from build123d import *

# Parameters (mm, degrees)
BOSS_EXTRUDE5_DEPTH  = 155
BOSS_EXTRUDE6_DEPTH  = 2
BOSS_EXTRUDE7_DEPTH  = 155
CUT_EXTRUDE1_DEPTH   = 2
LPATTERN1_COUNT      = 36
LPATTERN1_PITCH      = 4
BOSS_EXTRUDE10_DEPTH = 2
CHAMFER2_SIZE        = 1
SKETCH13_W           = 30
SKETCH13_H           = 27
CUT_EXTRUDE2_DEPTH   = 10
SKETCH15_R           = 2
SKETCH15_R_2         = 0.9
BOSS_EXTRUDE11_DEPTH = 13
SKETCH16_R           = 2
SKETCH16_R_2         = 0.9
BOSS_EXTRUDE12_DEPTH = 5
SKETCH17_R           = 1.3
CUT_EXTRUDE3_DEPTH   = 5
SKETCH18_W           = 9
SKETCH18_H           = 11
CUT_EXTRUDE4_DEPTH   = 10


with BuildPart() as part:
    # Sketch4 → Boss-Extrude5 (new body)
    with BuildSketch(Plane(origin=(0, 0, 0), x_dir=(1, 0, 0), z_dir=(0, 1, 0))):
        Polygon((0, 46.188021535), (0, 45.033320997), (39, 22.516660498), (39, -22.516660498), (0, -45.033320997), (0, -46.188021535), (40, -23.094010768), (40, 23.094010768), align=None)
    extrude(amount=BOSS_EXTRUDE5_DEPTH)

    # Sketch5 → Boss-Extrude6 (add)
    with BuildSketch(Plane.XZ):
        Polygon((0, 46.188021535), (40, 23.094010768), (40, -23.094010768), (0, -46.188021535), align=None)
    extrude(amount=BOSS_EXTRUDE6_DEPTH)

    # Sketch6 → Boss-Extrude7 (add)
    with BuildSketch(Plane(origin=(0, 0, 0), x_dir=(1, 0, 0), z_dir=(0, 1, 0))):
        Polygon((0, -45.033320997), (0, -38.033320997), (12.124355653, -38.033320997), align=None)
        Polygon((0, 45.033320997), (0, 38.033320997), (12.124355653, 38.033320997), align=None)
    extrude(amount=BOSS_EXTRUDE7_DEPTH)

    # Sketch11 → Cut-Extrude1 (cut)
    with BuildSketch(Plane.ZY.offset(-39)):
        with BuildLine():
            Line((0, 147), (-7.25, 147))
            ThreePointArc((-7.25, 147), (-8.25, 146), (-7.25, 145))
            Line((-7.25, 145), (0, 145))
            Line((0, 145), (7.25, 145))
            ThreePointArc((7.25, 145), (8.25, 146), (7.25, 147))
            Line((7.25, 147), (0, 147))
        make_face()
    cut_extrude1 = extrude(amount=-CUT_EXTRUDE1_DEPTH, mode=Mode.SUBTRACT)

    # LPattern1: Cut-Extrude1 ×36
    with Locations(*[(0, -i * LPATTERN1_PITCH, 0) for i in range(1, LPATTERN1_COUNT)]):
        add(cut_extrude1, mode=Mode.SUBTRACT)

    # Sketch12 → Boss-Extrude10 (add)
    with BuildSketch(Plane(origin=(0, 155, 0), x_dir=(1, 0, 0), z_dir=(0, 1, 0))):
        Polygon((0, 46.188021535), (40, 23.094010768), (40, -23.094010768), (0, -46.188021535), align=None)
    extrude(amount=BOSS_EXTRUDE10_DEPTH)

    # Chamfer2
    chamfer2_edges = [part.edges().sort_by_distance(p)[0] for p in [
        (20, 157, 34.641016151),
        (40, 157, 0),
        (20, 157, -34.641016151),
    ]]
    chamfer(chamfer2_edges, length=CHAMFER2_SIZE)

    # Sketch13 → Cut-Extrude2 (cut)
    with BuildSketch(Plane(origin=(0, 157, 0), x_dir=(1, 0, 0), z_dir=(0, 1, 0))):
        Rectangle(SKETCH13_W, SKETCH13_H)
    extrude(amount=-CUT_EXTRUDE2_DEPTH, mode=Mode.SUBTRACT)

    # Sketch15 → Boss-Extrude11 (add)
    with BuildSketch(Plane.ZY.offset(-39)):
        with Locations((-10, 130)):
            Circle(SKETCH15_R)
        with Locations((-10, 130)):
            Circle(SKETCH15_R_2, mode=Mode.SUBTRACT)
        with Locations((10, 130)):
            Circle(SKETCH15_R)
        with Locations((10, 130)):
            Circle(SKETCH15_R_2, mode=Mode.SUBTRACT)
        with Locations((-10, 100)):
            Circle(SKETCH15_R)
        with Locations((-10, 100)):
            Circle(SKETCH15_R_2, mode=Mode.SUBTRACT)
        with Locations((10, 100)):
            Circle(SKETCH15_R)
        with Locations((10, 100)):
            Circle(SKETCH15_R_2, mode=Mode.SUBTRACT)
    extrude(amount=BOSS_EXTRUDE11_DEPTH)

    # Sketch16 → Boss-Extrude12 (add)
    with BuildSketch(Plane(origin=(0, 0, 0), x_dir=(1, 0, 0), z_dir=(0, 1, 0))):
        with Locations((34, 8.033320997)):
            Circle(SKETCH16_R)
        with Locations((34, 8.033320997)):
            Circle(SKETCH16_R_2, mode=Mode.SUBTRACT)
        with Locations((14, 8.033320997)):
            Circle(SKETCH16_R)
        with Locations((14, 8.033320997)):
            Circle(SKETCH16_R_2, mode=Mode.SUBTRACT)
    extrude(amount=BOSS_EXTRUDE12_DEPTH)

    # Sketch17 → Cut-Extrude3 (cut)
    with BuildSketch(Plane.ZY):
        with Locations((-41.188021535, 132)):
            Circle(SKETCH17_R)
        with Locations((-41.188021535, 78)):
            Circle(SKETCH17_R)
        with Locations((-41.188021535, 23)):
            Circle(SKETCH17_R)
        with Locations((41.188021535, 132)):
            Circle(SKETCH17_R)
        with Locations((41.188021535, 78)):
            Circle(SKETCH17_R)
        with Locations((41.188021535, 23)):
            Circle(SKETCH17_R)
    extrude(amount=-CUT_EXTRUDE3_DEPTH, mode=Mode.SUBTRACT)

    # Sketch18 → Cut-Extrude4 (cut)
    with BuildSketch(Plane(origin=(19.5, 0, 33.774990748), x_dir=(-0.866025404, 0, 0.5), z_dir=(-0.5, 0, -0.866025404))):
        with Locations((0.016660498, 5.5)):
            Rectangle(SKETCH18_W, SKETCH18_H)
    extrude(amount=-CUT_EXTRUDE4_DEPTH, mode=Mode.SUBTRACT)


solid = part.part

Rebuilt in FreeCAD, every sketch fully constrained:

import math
import FreeCAD as App
import Part
import Sketcher

V = App.Vector
Q = App.Units.Quantity


def edges_at(feature, points):
    """Names of the edges that pass closest to the given points."""
    edges = feature.Shape.Edges
    near = lambda p: min(range(len(edges)), key=lambda i: edges[i].distToShape(Part.Vertex(*p))[0])
    return sorted({f"Edge{near(p) + 1}" for p in points})

doc = App.newDocument("Part")
body = doc.addObject("PartDesign::Body", "Body")

# Sketch on XZ plane
sketch1 = body.newObject("Sketcher::SketchObject", "Sketch")
sketch1.AttachmentSupport = (doc.getObject("XZ_Plane"), [""])
sketch1.MapMode = "FlatFace"
sketch1.addGeometry([
    Part.LineSegment(V(0, -46.2, 0), V(0, -45, 0)),  # 0
    Part.LineSegment(V(0, -45, 0), V(39, -22.5, 0)),  # 1
    Part.LineSegment(V(39, -22.5, 0), V(39, 22.5, 0)),  # 2
    Part.LineSegment(V(39, 22.5, 0), V(0, 45, 0)),  # 3
    Part.LineSegment(V(0, 45, 0), V(0, 46.2, 0)),  # 4
    Part.LineSegment(V(0, 46.2, 0), V(40, 23.1, 0)),  # 5
    Part.LineSegment(V(40, 23.1, 0), V(40, -23.1, 0)),  # 6
    Part.LineSegment(V(40, -23.1, 0), V(0, -46.2, 0)),  # 7
], False)
sketch1.addConstraint([
    Sketcher.Constraint("Coincident", 0, 2, 1, 1),
    Sketcher.Constraint("Coincident", 1, 2, 2, 1),
    Sketcher.Constraint("Coincident", 2, 2, 3, 1),
    Sketcher.Constraint("Coincident", 3, 2, 4, 1),
    Sketcher.Constraint("Coincident", 4, 2, 5, 1),
    Sketcher.Constraint("Coincident", 5, 2, 6, 1),
    Sketcher.Constraint("Coincident", 6, 2, 7, 1),
    Sketcher.Constraint("Coincident", 7, 2, 0, 1),
    Sketcher.Constraint("Vertical", 0),
    Sketcher.Constraint("Vertical", 2),
    Sketcher.Constraint("Vertical", 4),
    Sketcher.Constraint("Vertical", 6),
    Sketcher.Constraint("Symmetric", 0, 2, 3, 2, -1, 1),
    Sketcher.Constraint("Symmetric", 4, 2, 7, 2, -1),
    Sketcher.Constraint("Parallel", 3, 5),
    Sketcher.Constraint("Parallel", 1, 7),
    Sketcher.Constraint("Equal", 1, 3),
    Sketcher.Constraint("Angle", 1, Q("30 deg")),
    Sketcher.Constraint("DistanceX", -1, 1, 1, 2, Q("39 mm")),
    Sketcher.Constraint("DistanceX", -1, 1, 5, 2, Q("40 mm")),
    Sketcher.Constraint("DistanceY", 0, 1, 0, 2, Q("1.154701 mm")),
    Sketcher.Constraint("DistanceY", 2, 1, 2, 2, Q("45.033321 mm")),
])
pad1 = body.newObject("PartDesign::Pad", "Pad")
pad1.Profile = sketch1
pad1.Length = 155
pad1.Reversed = True

# Sketch on XZ plane
sketch2 = body.newObject("Sketcher::SketchObject", "Sketch001")
sketch2.AttachmentSupport = (doc.getObject("XZ_Plane"), [""])
sketch2.MapMode = "FlatFace"
sketch2.addGeometry([
    Part.LineSegment(V(40, 23, 0), V(0, 46, 0)),
    Part.LineSegment(V(0, 46, 0), V(0, -46, 0)),
    Part.LineSegment(V(0, -46, 0), V(40, -23, 0)),
    Part.LineSegment(V(40, -23, 0), V(40, 23, 0)),
], False)
sketch2.addConstraint([
    Sketcher.Constraint("Coincident", 0, 2, 1, 1),
    Sketcher.Constraint("Coincident", 1, 2, 2, 1),
    Sketcher.Constraint("Coincident", 2, 2, 3, 1),
    Sketcher.Constraint("Coincident", 3, 2, 0, 1),
    Sketcher.Constraint("Vertical", 1),
    Sketcher.Constraint("Vertical", 3),
    Sketcher.Constraint("Symmetric", 0, 2, 1, 2, -1, 1),
    Sketcher.Constraint("Equal", 0, 2),
    Sketcher.Constraint("Angle", 0, Q("150 deg")),
    Sketcher.Constraint("DistanceX", -1, 1, 2, 2, Q("40 mm")),
    Sketcher.Constraint("DistanceY", 3, 1, 3, 2, Q("46.188022 mm")),
])
pad2 = body.newObject("PartDesign::Pad", "Pad001")
pad2.Profile = sketch2
pad2.Length = 2

# Sketch on XZ plane
sketch3 = body.newObject("Sketcher::SketchObject", "Sketch002")
sketch3.AttachmentSupport = (doc.getObject("XZ_Plane"), [""])
sketch3.MapMode = "FlatFace"
sketch3.addGeometry([
    Part.LineSegment(V(0, 38, 0), V(0, 45, 0)),  # 0
    Part.LineSegment(V(0, 45, 0), V(12, 38, 0)),  # 1
    Part.LineSegment(V(12, 38, 0), V(0, 38, 0)),  # 2
    Part.LineSegment(V(0, -45, 0), V(0, -38, 0)),  # 3
    Part.LineSegment(V(0, -38, 0), V(12, -38, 0)),  # 4
    Part.LineSegment(V(12, -38, 0), V(0, -45, 0)),  # 5
], False)
sketch3.addConstraint([
    Sketcher.Constraint("Coincident", 0, 2, 1, 1),
    Sketcher.Constraint("Coincident", 1, 2, 2, 1),
    Sketcher.Constraint("Coincident", 2, 2, 0, 1),
    Sketcher.Constraint("Coincident", 3, 2, 4, 1),
    Sketcher.Constraint("Coincident", 4, 2, 5, 1),
    Sketcher.Constraint("Coincident", 5, 2, 3, 1),
    Sketcher.Constraint("Vertical", 0),
    Sketcher.Constraint("Horizontal", 2),
    Sketcher.Constraint("Vertical", 3),
    Sketcher.Constraint("Horizontal", 4),
    Sketcher.Constraint("Symmetric", 2, 2, 3, 2, -1, 1),
    Sketcher.Constraint("Symmetric", 0, 2, 5, 2, -1),
    Sketcher.Constraint("Vertical", 1, 2, 4, 2),
    Sketcher.Constraint("DistanceY", 0, 1, 0, 2, Q("7 mm")),
    Sketcher.Constraint("Angle", 1, Q("-30 deg")),
    Sketcher.Constraint("DistanceY", -1, 1, 0, 2, Q("45.033321 mm")),
])
pad3 = body.newObject("PartDesign::Pad", "Pad002")
pad3.Profile = sketch3
pad3.Length = 155
pad3.Reversed = True

# Sketch on YZ plane
sketch4 = body.newObject("Sketcher::SketchObject", "Sketch003")
sketch4.AttachmentSupport = (doc.getObject("YZ_Plane"), [""])
sketch4.MapMode = "FlatFace"
sketch4.AttachmentOffset = App.Placement(V(0, 0, 39), App.Rotation())
sketch4.addGeometry([
    Part.ArcOfCircle(Part.Circle(V(146, -7.2, 0), V(0, 0, 1), 1), math.radians(180), math.radians(360)),
    Part.LineSegment(V(145, -7.2, 0), V(145, 7.2, 0)),
    Part.ArcOfCircle(Part.Circle(V(146, 7.2, 0), V(0, 0, 1), 1), math.radians(0), math.radians(180)),
    Part.LineSegment(V(147, 7.2, 0), V(147, -7.2, 0)),
], False)
sketch4.addConstraint([
    Sketcher.Constraint("Tangent", 0, 1, 1, 1),
    Sketcher.Constraint("Tangent", 1, 2, 2, 2),
    Sketcher.Constraint("Tangent", 2, 1, 3, 1),
    Sketcher.Constraint("Tangent", 3, 2, 0, 2),
    Sketcher.Constraint("Vertical", 1),
    Sketcher.Constraint("Vertical", 3),
    Sketcher.Constraint("Radius", 0, Q("1 mm")),
    Sketcher.Constraint("DistanceY", 1, 1, 1, 2, Q("14.5 mm")),
    Sketcher.Constraint("DistanceX", -1, 1, 0, 3, Q("146 mm")),
    Sketcher.Constraint("DistanceY", 0, 3, -1, 1, Q("7.25 mm")),
])
pocket1 = body.newObject("PartDesign::Pocket", "Pocket")
pocket1.Profile = sketch4
pocket1.Length = 2
pocket1.Reversed = True
doc.recompute()

linearpattern = body.newObject("PartDesign::LinearPattern", "LinearPattern")
linearpattern.Originals = [pocket1]
linearpattern.Direction = (doc.getObject("Y_Axis"), [""])
linearpattern.Mode = "offset"
linearpattern.Offset = 4
linearpattern.Occurrences = 36
linearpattern.Reversed = True
body.Tip = linearpattern

# Sketch on XZ plane
sketch5 = body.newObject("Sketcher::SketchObject", "Sketch004")
sketch5.AttachmentSupport = (doc.getObject("XZ_Plane"), [""])
sketch5.MapMode = "FlatFace"
sketch5.AttachmentOffset = App.Placement(V(0, 0, -155), App.Rotation())
sketch5.addGeometry([
    Part.LineSegment(V(40, -23, 0), V(0, -46, 0)),
    Part.LineSegment(V(0, -46, 0), V(0, 46, 0)),
    Part.LineSegment(V(0, 46, 0), V(40, 23, 0)),
    Part.LineSegment(V(40, 23, 0), V(40, -23, 0)),
], False)
sketch5.addConstraint([
    Sketcher.Constraint("Coincident", 0, 2, 1, 1),
    Sketcher.Constraint("Coincident", 1, 2, 2, 1),
    Sketcher.Constraint("Coincident", 2, 2, 3, 1),
    Sketcher.Constraint("Coincident", 3, 2, 0, 1),
    Sketcher.Constraint("Vertical", 1),
    Sketcher.Constraint("Vertical", 3),
    Sketcher.Constraint("Symmetric", 0, 2, 1, 2, -1, 1),
    Sketcher.Constraint("Equal", 0, 2),
    Sketcher.Constraint("Angle", 0, Q("-150 deg")),
    Sketcher.Constraint("DistanceX", -1, 1, 2, 2, Q("40 mm")),
    Sketcher.Constraint("DistanceY", 3, 2, 3, 1, Q("46.188022 mm")),
])
pad4 = body.newObject("PartDesign::Pad", "Pad003")
pad4.Profile = sketch5
pad4.Length = 2
pad4.Reversed = True
doc.recompute()

chamfer = body.newObject("PartDesign::Chamfer", "Chamfer")
chamfer.Base = (pad4, edges_at(pad4, [(20, 157, 34.641), (40, 157, 0), (20, 157, -34.641)]))
chamfer.Size = 1

# Sketch on XZ plane
sketch6 = body.newObject("Sketcher::SketchObject", "Sketch005")
sketch6.AttachmentSupport = (doc.getObject("XZ_Plane"), [""])
sketch6.MapMode = "FlatFace"
sketch6.AttachmentOffset = App.Placement(V(0, 0, -157), App.Rotation())
sketch6.addGeometry([
    Part.LineSegment(V(-15, -14, 0), V(-15, 14, 0)),
    Part.LineSegment(V(-15, 14, 0), V(15, 14, 0)),
    Part.LineSegment(V(15, 14, 0), V(15, -14, 0)),
    Part.LineSegment(V(15, -14, 0), V(-15, -14, 0)),
], False)
sketch6.addConstraint([
    Sketcher.Constraint("Coincident", 0, 2, 1, 1),
    Sketcher.Constraint("Coincident", 1, 2, 2, 1),
    Sketcher.Constraint("Coincident", 2, 2, 3, 1),
    Sketcher.Constraint("Coincident", 3, 2, 0, 1),
    Sketcher.Constraint("Vertical", 0),
    Sketcher.Constraint("Horizontal", 1),
    Sketcher.Constraint("Vertical", 2),
    Sketcher.Constraint("Horizontal", 3),
    Sketcher.Constraint("Symmetric", 0, 2, 2, 2, -1, 1),
    Sketcher.Constraint("DistanceX", 1, 1, 1, 2, Q("30 mm")),
    Sketcher.Constraint("DistanceY", 0, 1, 0, 2, Q("27 mm")),
])
pocket2 = body.newObject("PartDesign::Pocket", "Pocket001")
pocket2.Profile = sketch6
pocket2.Length = 10
pocket2.Reversed = True

# Sketch on YZ plane
sketch7 = body.newObject("Sketcher::SketchObject", "Sketch006")
sketch7.AttachmentSupport = (doc.getObject("YZ_Plane"), [""])
sketch7.MapMode = "FlatFace"
sketch7.AttachmentOffset = App.Placement(V(0, 0, 39), App.Rotation())
sketch7.addGeometry([
    Part.Circle(V(130, -10, 0), V(0, 0, 1), 2),  # 0
    Part.Circle(V(130, -10, 0), V(0, 0, 1), 0.9),  # 1
    Part.Circle(V(130, 10, 0), V(0, 0, 1), 2),  # 2
    Part.Circle(V(130, 10, 0), V(0, 0, 1), 0.9),  # 3
    Part.Circle(V(100, -10, 0), V(0, 0, 1), 2),  # 4
    Part.Circle(V(100, -10, 0), V(0, 0, 1), 0.9),  # 5
    Part.Circle(V(100, 10, 0), V(0, 0, 1), 2),  # 6
    Part.Circle(V(100, 10, 0), V(0, 0, 1), 0.9),  # 7
], False)
sketch7.addConstraint([
    Sketcher.Constraint("Coincident", 1, 3, 0, 3),
    Sketcher.Constraint("Coincident", 3, 3, 2, 3),
    Sketcher.Constraint("Coincident", 5, 3, 4, 3),
    Sketcher.Constraint("Coincident", 7, 3, 6, 3),
    Sketcher.Constraint("Equal", 0, 2),
    Sketcher.Constraint("Equal", 1, 3),
    Sketcher.Constraint("Equal", 2, 4),
    Sketcher.Constraint("Equal", 3, 5),
    Sketcher.Constraint("Equal", 4, 6),
    Sketcher.Constraint("Equal", 5, 7),
    Sketcher.Constraint("Symmetric", 0, 3, 2, 3, -1),
    Sketcher.Constraint("Symmetric", 4, 3, 6, 3, -1),
    Sketcher.Constraint("Horizontal", 1, 3, 4, 3),
    Sketcher.Constraint("Diameter", 0, Q("4 mm")),
    Sketcher.Constraint("Diameter", 1, Q("1.8 mm")),
    Sketcher.Constraint("DistanceX", -1, 1, 0, 3, Q("130 mm")),
    Sketcher.Constraint("DistanceY", 0, 3, -1, 1, Q("10 mm")),
    Sketcher.Constraint("DistanceX", -1, 1, 4, 3, Q("100 mm")),
])
pad5 = body.newObject("PartDesign::Pad", "Pad004")
pad5.Profile = sketch7
pad5.Length = 13
pad5.Reversed = True

# Sketch on XZ plane
sketch8 = body.newObject("Sketcher::SketchObject", "Sketch007")
sketch8.AttachmentSupport = (doc.getObject("XZ_Plane"), [""])
sketch8.MapMode = "FlatFace"
sketch8.addGeometry([
    Part.Circle(V(34, -8, 0), V(0, 0, 1), 2),
    Part.Circle(V(34, -8, 0), V(0, 0, 1), 0.9),
    Part.Circle(V(14, -8, 0), V(0, 0, 1), 2),
    Part.Circle(V(14, -8, 0), V(0, 0, 1), 0.9),
], False)
sketch8.addConstraint([
    Sketcher.Constraint("Coincident", 1, 3, 0, 3),
    Sketcher.Constraint("Coincident", 3, 3, 2, 3),
    Sketcher.Constraint("Equal", 0, 2),
    Sketcher.Constraint("Equal", 1, 3),
    Sketcher.Constraint("Horizontal", 1, 3, 2, 3),
    Sketcher.Constraint("Diameter", 0, Q("4 mm")),
    Sketcher.Constraint("Diameter", 1, Q("1.8 mm")),
    Sketcher.Constraint("DistanceX", -1, 1, 0, 3, Q("34 mm")),
    Sketcher.Constraint("DistanceX", -1, 1, 2, 3, Q("14 mm")),
    Sketcher.Constraint("DistanceY", 0, 3, -1, 1, Q("8.033321 mm")),
])
pad6 = body.newObject("PartDesign::Pad", "Pad005")
pad6.Profile = sketch8
pad6.Length = 5
pad6.Reversed = True

# Sketch on YZ plane
sketch9 = body.newObject("Sketcher::SketchObject", "Sketch008")
sketch9.AttachmentSupport = (doc.getObject("YZ_Plane"), [""])
sketch9.MapMode = "FlatFace"
sketch9.addGeometry([
    Part.Circle(V(132, -41.2, 0), V(0, 0, 1), 1.3),  # 0
    Part.Circle(V(78, -41.2, 0), V(0, 0, 1), 1.3),  # 1
    Part.Circle(V(23, -41.2, 0), V(0, 0, 1), 1.3),  # 2
    Part.Circle(V(132, 41.2, 0), V(0, 0, 1), 1.3),  # 3
    Part.Circle(V(78, 41.2, 0), V(0, 0, 1), 1.3),  # 4
    Part.Circle(V(23, 41.2, 0), V(0, 0, 1), 1.3),  # 5
], False)
sketch9.addConstraint([
    Sketcher.Constraint("Equal", 0, 1),
    Sketcher.Constraint("Equal", 1, 2),
    Sketcher.Constraint("Equal", 2, 3),
    Sketcher.Constraint("Equal", 3, 4),
    Sketcher.Constraint("Equal", 4, 5),
    Sketcher.Constraint("Symmetric", 0, 3, 3, 3, -1),
    Sketcher.Constraint("Symmetric", 1, 3, 4, 3, -1),
    Sketcher.Constraint("Symmetric", 2, 3, 5, 3, -1),
    Sketcher.Constraint("Horizontal", 0, 3, 1, 3),
    Sketcher.Constraint("Horizontal", 1, 3, 2, 3),
    Sketcher.Constraint("Diameter", 0, Q("2.6 mm")),
    Sketcher.Constraint("DistanceX", -1, 1, 0, 3, Q("132 mm")),
    Sketcher.Constraint("DistanceX", -1, 1, 1, 3, Q("78 mm")),
    Sketcher.Constraint("DistanceX", -1, 1, 2, 3, Q("23 mm")),
    Sketcher.Constraint("DistanceY", 0, 3, -1, 1, Q("41.188022 mm")),
])
pocket3 = body.newObject("PartDesign::Pocket", "Pocket002")
pocket3.Profile = sketch9
pocket3.Length = 5
pocket3.Reversed = True

# Sketch on an angled plane
sketch10 = body.newObject("Sketcher::SketchObject", "Sketch009")
sketch10.Placement = App.Placement(V(19.5, 0, 33.774991), App.Rotation(V(-0.866025404, 0, 0.5), V(0, 1, 0), V(-0.5, 0, -0.866025404), "ZXY"))
sketch10.addGeometry([
    Part.LineSegment(V(-4, 11, 0), V(-4, 0, 0)),
    Part.LineSegment(V(-4, 0, 0), V(5, 0, 0)),
    Part.LineSegment(V(5, 0, 0), V(5, 11, 0)),
    Part.LineSegment(V(5, 11, 0), V(-4, 11, 0)),
], False)
sketch10.addConstraint([
    Sketcher.Constraint("Coincident", 0, 2, 1, 1),
    Sketcher.Constraint("Coincident", 1, 2, 2, 1),
    Sketcher.Constraint("Coincident", 2, 2, 3, 1),
    Sketcher.Constraint("Coincident", 3, 2, 0, 1),
    Sketcher.Constraint("Vertical", 0),
    Sketcher.Constraint("Horizontal", 1),
    Sketcher.Constraint("Vertical", 2),
    Sketcher.Constraint("Horizontal", 3),
    Sketcher.Constraint("PointOnObject", 0, 2, -1),
    Sketcher.Constraint("DistanceX", 1, 1, 1, 2, Q("9 mm")),
    Sketcher.Constraint("DistanceY", 0, 2, 0, 1, Q("11 mm")),
    Sketcher.Constraint("DistanceX", 0, 2, -1, 1, Q("4.48334 mm")),
])
pocket4 = body.newObject("PartDesign::Pocket", "Pocket003")
pocket4.Profile = sketch10
pocket4.Length = 10

doc.recompute()
